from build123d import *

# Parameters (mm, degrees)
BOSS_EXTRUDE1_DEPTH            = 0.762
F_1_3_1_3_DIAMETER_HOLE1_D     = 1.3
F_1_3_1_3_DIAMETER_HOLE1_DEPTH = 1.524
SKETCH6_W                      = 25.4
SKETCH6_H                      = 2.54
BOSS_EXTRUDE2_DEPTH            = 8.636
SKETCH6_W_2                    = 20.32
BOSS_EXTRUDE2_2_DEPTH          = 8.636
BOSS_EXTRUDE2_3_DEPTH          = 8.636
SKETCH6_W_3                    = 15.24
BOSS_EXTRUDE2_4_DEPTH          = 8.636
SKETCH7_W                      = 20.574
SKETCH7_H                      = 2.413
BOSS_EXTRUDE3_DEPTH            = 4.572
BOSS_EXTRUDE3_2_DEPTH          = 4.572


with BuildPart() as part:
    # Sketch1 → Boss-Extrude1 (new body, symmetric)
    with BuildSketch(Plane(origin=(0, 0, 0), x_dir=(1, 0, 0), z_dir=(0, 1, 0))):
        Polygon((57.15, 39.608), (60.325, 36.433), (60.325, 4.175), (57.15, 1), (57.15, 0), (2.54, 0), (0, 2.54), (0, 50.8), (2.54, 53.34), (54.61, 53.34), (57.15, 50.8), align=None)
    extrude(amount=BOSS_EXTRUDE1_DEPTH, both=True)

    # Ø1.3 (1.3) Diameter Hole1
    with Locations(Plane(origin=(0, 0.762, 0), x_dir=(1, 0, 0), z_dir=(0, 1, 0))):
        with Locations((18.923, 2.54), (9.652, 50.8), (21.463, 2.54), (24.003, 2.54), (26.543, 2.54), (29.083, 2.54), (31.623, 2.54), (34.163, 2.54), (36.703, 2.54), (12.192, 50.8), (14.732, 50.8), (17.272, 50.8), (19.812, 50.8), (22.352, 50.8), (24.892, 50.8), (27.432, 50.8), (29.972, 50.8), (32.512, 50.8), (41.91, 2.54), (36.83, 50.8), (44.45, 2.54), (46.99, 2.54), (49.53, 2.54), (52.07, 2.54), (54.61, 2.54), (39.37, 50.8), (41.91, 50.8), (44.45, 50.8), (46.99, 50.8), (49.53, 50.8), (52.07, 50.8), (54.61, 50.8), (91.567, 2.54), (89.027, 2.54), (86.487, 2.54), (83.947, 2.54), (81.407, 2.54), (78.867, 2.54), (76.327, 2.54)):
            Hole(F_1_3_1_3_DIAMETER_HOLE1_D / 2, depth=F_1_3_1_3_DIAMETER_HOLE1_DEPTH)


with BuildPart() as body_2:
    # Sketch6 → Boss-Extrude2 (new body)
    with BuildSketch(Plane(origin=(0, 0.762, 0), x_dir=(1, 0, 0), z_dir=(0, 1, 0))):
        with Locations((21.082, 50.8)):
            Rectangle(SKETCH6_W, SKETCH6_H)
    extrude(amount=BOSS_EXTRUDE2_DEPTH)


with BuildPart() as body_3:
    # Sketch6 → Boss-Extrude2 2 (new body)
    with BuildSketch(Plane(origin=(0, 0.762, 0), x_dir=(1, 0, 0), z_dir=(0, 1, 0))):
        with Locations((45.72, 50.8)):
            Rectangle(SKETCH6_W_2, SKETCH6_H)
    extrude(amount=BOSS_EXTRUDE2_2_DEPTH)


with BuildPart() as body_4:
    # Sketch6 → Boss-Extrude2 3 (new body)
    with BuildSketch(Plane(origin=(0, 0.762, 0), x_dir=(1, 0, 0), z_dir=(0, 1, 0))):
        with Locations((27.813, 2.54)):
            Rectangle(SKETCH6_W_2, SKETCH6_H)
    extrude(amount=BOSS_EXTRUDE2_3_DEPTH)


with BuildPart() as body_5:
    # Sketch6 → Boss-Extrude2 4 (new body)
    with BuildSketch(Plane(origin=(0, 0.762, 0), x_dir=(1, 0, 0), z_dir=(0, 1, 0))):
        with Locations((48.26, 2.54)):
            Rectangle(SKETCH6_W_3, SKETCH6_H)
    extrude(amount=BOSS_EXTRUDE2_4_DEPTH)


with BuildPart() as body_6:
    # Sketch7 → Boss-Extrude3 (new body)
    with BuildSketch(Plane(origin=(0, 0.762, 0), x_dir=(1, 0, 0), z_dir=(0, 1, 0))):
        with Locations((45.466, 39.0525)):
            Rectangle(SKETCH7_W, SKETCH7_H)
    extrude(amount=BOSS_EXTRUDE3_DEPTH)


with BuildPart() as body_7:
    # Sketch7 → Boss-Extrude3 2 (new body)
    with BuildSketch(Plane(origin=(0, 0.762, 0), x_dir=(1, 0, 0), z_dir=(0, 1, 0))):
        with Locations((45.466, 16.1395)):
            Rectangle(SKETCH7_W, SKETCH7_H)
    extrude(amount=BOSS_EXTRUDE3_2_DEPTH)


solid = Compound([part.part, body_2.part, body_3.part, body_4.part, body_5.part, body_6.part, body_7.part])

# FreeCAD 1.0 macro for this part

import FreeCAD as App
import Part
import Sketcher
from FreeCAD import Vector
Q = App.Units.Quantity

doc = App.newDocument("Part")
body = doc.addObject("PartDesign::Body", "Body")

# Sketch on XZ plane
sketch1 = doc.addObject("Sketcher::SketchObject", "Sketch")
body.addObject(sketch1)
sketch1.AttachmentSupport = (doc.XZ_Plane, [""])
sketch1.MapMode = "FlatFace"
sketch1.addGeometry([
    Part.LineSegment(Vector(60.3, -36.4, 0), Vector(57.1, -39.6, 0)),  # 0
    Part.LineSegment(Vector(57.1, -39.6, 0), Vector(57.1, -50.8, 0)),  # 1
    Part.LineSegment(Vector(57.1, -50.8, 0), Vector(54.6, -53.3, 0)),  # 2
    Part.LineSegment(Vector(54.6, -53.3, 0), Vector(2.5, -53.3, 0)),  # 3
    Part.LineSegment(Vector(2.5, -53.3, 0), Vector(0, -50.8, 0)),  # 4
    Part.LineSegment(Vector(0, -50.8, 0), Vector(0, -2.5, 0)),  # 5
    Part.LineSegment(Vector(0, -2.5, 0), Vector(2.5, 0, 0)),  # 6
    Part.LineSegment(Vector(2.5, 0, 0), Vector(57.1, 0, 0)),  # 7
    Part.LineSegment(Vector(57.1, 0, 0), Vector(57.1, -1, 0)),  # 8
    Part.LineSegment(Vector(57.1, -1, 0), Vector(60.3, -4.2, 0)),  # 9
    Part.LineSegment(Vector(60.3, -4.2, 0), Vector(60.3, -36.4, 0)),  # 10
], False)
sketch1.addConstraint([
    Sketcher.Constraint("Coincident", 0, 2, 1, 1),
    Sketcher.Constraint("Coincident", 1, 2, 2, 1),
    Sketcher.Constraint("Coincident", 2, 2, 3, 1),
    Sketcher.Constraint("Coincident", 3, 2, 4, 1),
    Sketcher.Constraint("Coincident", 4, 2, 5, 1),
    Sketcher.Constraint("Coincident", 5, 2, 6, 1),
    Sketcher.Constraint("Coincident", 6, 2, 7, 1),
    Sketcher.Constraint("Coincident", 7, 2, 8, 1),
    Sketcher.Constraint("Coincident", 8, 2, 9, 1),
    Sketcher.Constraint("Coincident", 9, 2, 10, 1),
    Sketcher.Constraint("Coincident", 10, 2, 0, 1),
    Sketcher.Constraint("Vertical", 1),
    Sketcher.Constraint("Horizontal", 3),
    Sketcher.Constraint("Vertical", 5),
    Sketcher.Constraint("Horizontal", 7),
    Sketcher.Constraint("Vertical", 8),
    Sketcher.Constraint("Vertical", 10),
    Sketcher.Constraint("PointOnObject", 4, 2, -2),
    Sketcher.Constraint("PointOnObject", 6, 2, -1),
    Sketcher.Constraint("Parallel", 0, 2),
    Sketcher.Constraint("Perpendicular", 2, 4),
    Sketcher.Constraint("Perpendicular", 4, 6),
    Sketcher.Constraint("Perpendicular", 6, 9),
    Sketcher.Constraint("Horizontal", 1, 2, 4, 2),
    Sketcher.Constraint("Vertical", 3, 2, 6, 2),
    Sketcher.Constraint("Vertical", 1, 2, 7, 2),
    Sketcher.Constraint("Equal", 2, 4),
    Sketcher.Constraint("DistanceY", 5, 1, 5, 2, Q("1.9 in")),
    Sketcher.Constraint("DistanceY", 1, 2, -1, 1, Q("2 in")),
    Sketcher.Constraint("DistanceX", 3, 2, 3, 1, Q("2.05 in")),
    Sketcher.Constraint("DistanceY", 10, 2, 10, 1, Q("1.27 in")),
    Sketcher.Constraint("DistanceY", 0, 2, 8, 2, Q("1.52 in")),
    Sketcher.Constraint("DistanceY", 1, 2, 1, 1, 11.192),
])
pad1 = doc.addObject("PartDesign::Pad", "Pad")
body.addObject(pad1)
pad1.Profile = sketch1
pad1.Length = Q("0.06 in")
pad1.Midplane = True

# Sketch on XZ plane
sketch2 = doc.addObject("Sketcher::SketchObject", "Sketch001")
body.addObject(sketch2)
sketch2.AttachmentSupport = (doc.XZ_Plane, [""])
sketch2.MapMode = "FlatFace"
sketch2.AttachmentOffset = App.Placement(Vector(0, 0, -0.03 * 25.4), App.Rotation())
sketch2.addGeometry([
    Part.Circle(Vector(18.9, -2.5, 0), Vector(0, 0, 1), 0.7),  # 0
    Part.Circle(Vector(9.7, -50.8, 0), Vector(0, 0, 1), 0.7),  # 1
    Part.Circle(Vector(21.5, -2.5, 0), Vector(0, 0, 1), 0.7),  # 2
    Part.Circle(Vector(24, -2.5, 0), Vector(0, 0, 1), 0.7),  # 3
    Part.Circle(Vector(26.5, -2.5, 0), Vector(0, 0, 1), 0.7),  # 4
    Part.Circle(Vector(29.1, -2.5, 0), Vector(0, 0, 1), 0.7),  # 5
    Part.Circle(Vector(31.6, -2.5, 0), Vector(0, 0, 1), 0.7),  # 6
    Part.Circle(Vector(34.2, -2.5, 0), Vector(0, 0, 1), 0.7),  # 7
    Part.Circle(Vector(36.7, -2.5, 0), Vector(0, 0, 1), 0.7),  # 8
    Part.Circle(Vector(12.2, -50.8, 0), Vector(0, 0, 1), 0.7),  # 9
    Part.Circle(Vector(14.7, -50.8, 0), Vector(0, 0, 1), 0.7),  # 10
    Part.Circle(Vector(17.3, -50.8, 0), Vector(0, 0, 1), 0.7),  # 11
    Part.Circle(Vector(19.8, -50.8, 0), Vector(0, 0, 1), 0.7),  # 12
    Part.Circle(Vector(22.4, -50.8, 0), Vector(0, 0, 1), 0.7),  # 13
    Part.Circle(Vector(24.9, -50.8, 0), Vector(0, 0, 1), 0.7),  # 14
    Part.Circle(Vector(27.4, -50.8, 0), Vector(0, 0, 1), 0.7),  # 15
    Part.Circle(Vector(30, -50.8, 0), Vector(0, 0, 1), 0.7),  # 16
    Part.Circle(Vector(32.5, -50.8, 0), Vector(0, 0, 1), 0.7),  # 17
    Part.Circle(Vector(41.9, -2.5, 0), Vector(0, 0, 1), 0.7),  # 18
    Part.Circle(Vector(36.8, -50.8, 0), Vector(0, 0, 1), 0.7),  # 19
    Part.Circle(Vector(44.5, -2.5, 0), Vector(0, 0, 1), 0.7),  # 20
    Part.Circle(Vector(47, -2.5, 0), Vector(0, 0, 1), 0.7),  # 21
    Part.Circle(Vector(49.5, -2.5, 0), Vector(0, 0, 1), 0.7),  # 22
    Part.Circle(Vector(52.1, -2.5, 0), Vector(0, 0, 1), 0.7),  # 23
    Part.Circle(Vector(54.6, -2.5, 0), Vector(0, 0, 1), 0.7),  # 24
    Part.Circle(Vector(39.4, -50.8, 0), Vector(0, 0, 1), 0.7),  # 25
    Part.Circle(Vector(41.9, -50.8, 0), Vector(0, 0, 1), 0.7),  # 26
    Part.Circle(Vector(44.5, -50.8, 0), Vector(0, 0, 1), 0.7),  # 27
    Part.Circle(Vector(47, -50.8, 0), Vector(0, 0, 1), 0.7),  # 28
    Part.Circle(Vector(49.5, -50.8, 0), Vector(0, 0, 1), 0.7),  # 29
    Part.Circle(Vector(52.1, -50.8, 0), Vector(0, 0, 1), 0.7),  # 30
    Part.Circle(Vector(54.6, -50.8, 0), Vector(0, 0, 1), 0.7),  # 31
    Part.Circle(Vector(91.6, -2.5, 0), Vector(0, 0, 1), 0.7),  # 32
    Part.Circle(Vector(89, -2.5, 0), Vector(0, 0, 1), 0.7),  # 33
    Part.Circle(Vector(86.5, -2.5, 0), Vector(0, 0, 1), 0.7),  # 34
    Part.Circle(Vector(83.9, -2.5, 0), Vector(0, 0, 1), 0.7),  # 35
    Part.Circle(Vector(81.4, -2.5, 0), Vector(0, 0, 1), 0.7),  # 36
    Part.Circle(Vector(78.9, -2.5, 0), Vector(0, 0, 1), 0.7),  # 37
    Part.Circle(Vector(76.3, -2.5, 0), Vector(0, 0, 1), 0.7),  # 38
], False)
sketch2.addConstraint([
    Sketcher.Constraint("Equal", 0, 1),
    Sketcher.Constraint("Equal", 1, 2),
    Sketcher.Constraint("Equal", 2, 3),
    Sketcher.Constraint("Equal", 3, 4),
    Sketcher.Constraint("Equal", 4, 5),
    Sketcher.Constraint("Equal", 5, 6),
    Sketcher.Constraint("Equal", 6, 7),
    Sketcher.Constraint("Equal", 7, 8),
    Sketcher.Constraint("Equal", 8, 9),
    Sketcher.Constraint("Equal", 9, 10),
    Sketcher.Constraint("Equal", 10, 11),
    Sketcher.Constraint("Equal", 11, 12),
    Sketcher.Constraint("Equal", 12, 13),
    Sketcher.Constraint("Equal", 13, 14),
    Sketcher.Constraint("Equal", 14, 15),
    Sketcher.Constraint("Equal", 15, 16),
    Sketcher.Constraint("Equal", 16, 17),
    Sketcher.Constraint("Equal", 17, 18),
    Sketcher.Constraint("Equal", 18, 19),
    Sketcher.Constraint("Equal", 19, 20),
    Sketcher.Constraint("Equal", 20, 21),
    Sketcher.Constraint("Equal", 21, 22),
    Sketcher.Constraint("Equal", 22, 23),
    Sketcher.Constraint("Equal", 23, 24),
    Sketcher.Constraint("Equal", 24, 25),
    Sketcher.Constraint("Equal", 25, 26),
    Sketcher.Constraint("Equal", 26, 27),
    Sketcher.Constraint("Equal", 27, 28),
    Sketcher.Constraint("Equal", 28, 29),
    Sketcher.Constraint("Equal", 29, 30),
    Sketcher.Constraint("Equal", 30, 31),
    Sketcher.Constraint("Equal", 31, 32),
    Sketcher.Constraint("Equal", 32, 33),
    Sketcher.Constraint("Equal", 33, 34),
    Sketcher.Constraint("Equal", 34, 35),
    Sketcher.Constraint("Equal", 35, 36),
    Sketcher.Constraint("Equal", 36, 37),
    Sketcher.Constraint("Equal", 37, 38),
    Sketcher.Constraint("Horizontal", 0, 3, 2, 3),
    Sketcher.Constraint("Horizontal", 2, 3, 3, 3),
    Sketcher.Constraint("Horizontal", 3, 3, 4, 3),
    Sketcher.Constraint("Horizontal", 4, 3, 5, 3),
    Sketcher.Constraint("Horizontal", 5, 3, 6, 3),
    Sketcher.Constraint("Horizontal", 6, 3, 7, 3),
    Sketcher.Constraint("Horizontal", 7, 3, 8, 3),
    Sketcher.Constraint("Horizontal", 1, 3, 9, 3),
    Sketcher.Constraint("Horizontal", 9, 3, 10, 3),
    Sketcher.Constraint("Horizontal", 10, 3, 11, 3),
    Sketcher.Constraint("Horizontal", 11, 3, 12, 3),
    Sketcher.Constraint("Horizontal", 12, 3, 13, 3),
    Sketcher.Constraint("Horizontal", 13, 3, 14, 3),
    Sketcher.Constraint("Horizontal", 14, 3, 15, 3),
    Sketcher.Constraint("Horizontal", 15, 3, 16, 3),
    Sketcher.Constraint("Horizontal", 16, 3, 17, 3),
    Sketcher.Constraint("Horizontal", 8, 3, 18, 3),
    Sketcher.Constraint("Horizontal", 17, 3, 19, 3),
    Sketcher.Constraint("Horizontal", 18, 3, 20, 3),
    Sketcher.Constraint("Horizontal", 20, 3, 21, 3),
    Sketcher.Constraint("Horizontal", 21, 3, 22, 3),
    Sketcher.Constraint("Horizontal", 22, 3, 23, 3),
    Sketcher.Constraint("Horizontal", 23, 3, 24, 3),
    Sketcher.Constraint("Horizontal", 19, 3, 25, 3),
    Sketcher.Constraint("Horizontal", 25, 3, 26, 3),
    Sketcher.Constraint("Horizontal", 26, 3, 27, 3),
    Sketcher.Constraint("Horizontal", 27, 3, 28, 3),
    Sketcher.Constraint("Horizontal", 28, 3, 29, 3),
    Sketcher.Constraint("Horizontal", 29, 3, 30, 3),
    Sketcher.Constraint("Horizontal", 30, 3, 31, 3),
    Sketcher.Constraint("Horizontal", 24, 3, 32, 3),
    Sketcher.Constraint("Horizontal", 32, 3, 33, 3),
    Sketcher.Constraint("Horizontal", 33, 3, 34, 3),
    Sketcher.Constraint("Horizontal", 34, 3, 35, 3),
    Sketcher.Constraint("Horizontal", 35, 3, 36, 3),
    Sketcher.Constraint("Horizontal", 36, 3, 37, 3),
    Sketcher.Constraint("Horizontal", 37, 3, 38, 3),
    Sketcher.Constraint("Vertical", 18, 3, 26, 3),
    Sketcher.Constraint("Vertical", 20, 3, 27, 3),
    Sketcher.Constraint("Vertical", 21, 3, 28, 3),
    Sketcher.Constraint("Vertical", 22, 3, 29, 3),
    Sketcher.Constraint("Vertical", 23, 3, 30, 3),
    Sketcher.Constraint("Vertical", 24, 3, 31, 3),
    Sketcher.Constraint("DistanceY", 1, 3, -1, 1, Q("2 in")),
    Sketcher.Constraint("DistanceY", 0, 3, -1, 1, Q("0.1 in")),
    Sketcher.Constraint("DistanceX", 0, 3, 2, 3, Q("0.1 in")),
    Sketcher.Constraint("DistanceX", 2, 3, 3, 3, Q("0.1 in")),
    Sketcher.Constraint("DistanceX", 3, 3, 4, 3, Q("0.1 in")),
    Sketcher.Constraint("DistanceX", 4, 3, 5, 3, Q("0.1 in")),
    Sketcher.Constraint("DistanceX", 5, 3, 6, 3, Q("0.1 in")),
    Sketcher.Constraint("DistanceX", 6, 3, 7, 3, Q("0.1 in")),
    Sketcher.Constraint("DistanceX", 7, 3, 8, 3, Q("0.1 in")),
    Sketcher.Constraint("DistanceX", 1, 3, 9, 3, Q("0.1 in")),
    Sketcher.Constraint("DistanceX", 9, 3, 10, 3, Q("0.1 in")),
    Sketcher.Constraint("DistanceX", 10, 3, 11, 3, Q("0.1 in")),
    Sketcher.Constraint("DistanceX", 11, 3, 12, 3, Q("0.1 in")),
    Sketcher.Constraint("DistanceX", 12, 3, 13, 3, Q("0.1 in")),
    Sketcher.Constraint("DistanceX", 13, 3, 14, 3, Q("0.1 in")),
    Sketcher.Constraint("DistanceX", 14, 3, 15, 3, Q("0.1 in")),
    Sketcher.Constraint("DistanceX", 15, 3, 16, 3, Q("0.1 in")),
    Sketcher.Constraint("DistanceX", 16, 3, 17, 3, Q("0.1 in")),
    Sketcher.Constraint("DistanceX", 18, 3, 20, 3, Q("0.1 in")),
    Sketcher.Constraint("DistanceX", 20, 3, 21, 3, Q("0.1 in")),
    Sketcher.Constraint("DistanceX", 21, 3, 22, 3, Q("0.1 in")),
    Sketcher.Constraint("DistanceX", 22, 3, 23, 3, Q("0.1 in")),
    Sketcher.Constraint("DistanceX", 23, 3, 24, 3, Q("0.1 in")),
    Sketcher.Constraint("DistanceX", 19, 3, 25, 3, Q("0.1 in")),
    Sketcher.Constraint("DistanceX", 25, 3, 26, 3, Q("0.1 in")),
    Sketcher.Constraint("DistanceX", 33, 3, 32, 3, Q("0.1 in")),
    Sketcher.Constraint("DistanceX", 34, 3, 33, 3, Q("0.1 in")),
    Sketcher.Constraint("DistanceX", 35, 3, 34, 3, Q("0.1 in")),
    Sketcher.Constraint("DistanceX", 36, 3, 35, 3, Q("0.1 in")),
    Sketcher.Constraint("DistanceX", 37, 3, 36, 3, Q("0.1 in")),
    Sketcher.Constraint("DistanceX", 38, 3, 37, 3, Q("0.1 in")),
    Sketcher.Constraint("Diameter", 0, 1.3),
    Sketcher.Constraint("DistanceX", -1, 1, 1, 3, Q("0.38 in")),
    Sketcher.Constraint("DistanceX", -1, 1, 18, 3, Q("1.65 in")),
    Sketcher.Constraint("DistanceX", -1, 1, 0, 3, Q("0.745 in")),
    Sketcher.Constraint("DistanceX", -1, 1, 32, 3, Q("3.605 in")),
])
doc.recompute()
hole = doc.addObject("PartDesign::Hole", "Hole")
body.addObject(hole)
hole.Profile = sketch2
hole.ThreadType = "None"
hole.Diameter = 1.3
hole.DepthType = "Dimension"
hole.Depth = Q("0.06 in")
hole.DrillPoint = "Flat"
hole.Reversed = True
body2 = doc.addObject("PartDesign::Body", "Body001")

# Sketch on XZ plane
sketch3 = doc.addObject("Sketcher::SketchObject", "Sketch002")
body2.addObject(sketch3)
sketch3.AttachmentSupport = (doc.getObject("XZ_Plane001"), [""])
sketch3.MapMode = "FlatFace"
sketch3.AttachmentOffset = App.Placement(Vector(0, 0, -0.03 * 25.4), App.Rotation())
sketch3.addGeometry([
    Part.LineSegment(Vector(8.4, -52.1, 0), Vector(8.4, -49.5, 0)),
    Part.LineSegment(Vector(8.4, -49.5, 0), Vector(33.8, -49.5, 0)),
    Part.LineSegment(Vector(33.8, -49.5, 0), Vector(33.8, -52.1, 0)),
    Part.LineSegment(Vector(33.8, -52.1, 0), Vector(8.4, -52.1, 0)),
], False)
sketch3.addConstraint([
    Sketcher.Constraint("Coincident", 0, 2, 1, 1),
    Sketcher.Constraint("Coincident", 1, 2, 2, 1),
    Sketcher.Constraint("Coincident", 2, 2, 3, 1),
    Sketcher.Constraint("Coincident", 3, 2, 0, 1),
    Sketcher.Constraint("Vertical", 0),
    Sketcher.Constraint("Horizontal", 1),
    Sketcher.Constraint("Vertical", 2),
    Sketcher.Constraint("Horizontal", 3),
    Sketcher.Constraint("DistanceX", 1, 1, 1, 2, Q("1 in")),
    Sketcher.Constraint("DistanceY", 0, 1, 0, 2, Q("0.1 in")),
    Sketcher.Constraint("DistanceX", -1, 1, 0, 2, Q("0.33 in")),
    Sketcher.Constraint("DistanceY", 0, 2, -1, 1, Q("1.95 in")),
])
pad2 = doc.addObject("PartDesign::Pad", "Pad001")
body2.addObject(pad2)
pad2.Profile = sketch3
pad2.Length = Q("0.34 in")
pad2.Reversed = True
body3 = doc.addObject("PartDesign::Body", "Body002")

# Sketch on XZ plane
sketch4 = doc.addObject("Sketcher::SketchObject", "Sketch003")
body3.addObject(sketch4)
sketch4.AttachmentSupport = (doc.getObject("XZ_Plane002"), [""])
sketch4.MapMode = "FlatFace"
sketch4.AttachmentOffset = App.Placement(Vector(0, 0, -0.03 * 25.4), App.Rotation())
sketch4.addGeometry([
    Part.LineSegment(Vector(35.6, -52.1, 0), Vector(35.6, -49.5, 0)),
    Part.LineSegment(Vector(35.6, -49.5, 0), Vector(55.9, -49.5, 0)),
    Part.LineSegment(Vector(55.9, -49.5, 0), Vector(55.9, -52.1, 0)),
    Part.LineSegment(Vector(55.9, -52.1, 0), Vector(35.6, -52.1, 0)),
], False)
sketch4.addConstraint([
    Sketcher.Constraint("Coincident", 0, 2, 1, 1),
    Sketcher.Constraint("Coincident", 1, 2, 2, 1),
    Sketcher.Constraint("Coincident", 2, 2, 3, 1),
    Sketcher.Constraint("Coincident", 3, 2, 0, 1),
    Sketcher.Constraint("Vertical", 0),
    Sketcher.Constraint("Horizontal", 1),
    Sketcher.Constraint("Vertical", 2),
    Sketcher.Constraint("Horizontal", 3),
    Sketcher.Constraint("DistanceX", 1, 1, 1, 2, Q("0.8 in")),
    Sketcher.Constraint("DistanceY", 0, 1, 0, 2, Q("0.1 in")),
    Sketcher.Constraint("DistanceX", -1, 1, 0, 2, Q("1.4 in")),
    Sketcher.Constraint("DistanceY", 0, 2, -1, 1, Q("1.95 in")),
])
pad3 = doc.addObject("PartDesign::Pad", "Pad002")
body3.addObject(pad3)
pad3.Profile = sketch4
pad3.Length = Q("0.34 in")
pad3.Reversed = True
body4 = doc.addObject("PartDesign::Body", "Body003")

# Sketch on XZ plane
sketch5 = doc.addObject("Sketcher::SketchObject", "Sketch004")
body4.addObject(sketch5)
sketch5.AttachmentSupport = (doc.getObject("XZ_Plane003"), [""])
sketch5.MapMode = "FlatFace"
sketch5.AttachmentOffset = App.Placement(Vector(0, 0, -0.03 * 25.4), App.Rotation())
sketch5.addGeometry([
    Part.LineSegment(Vector(17.7, -3.8, 0), Vector(17.7, -1.3, 0)),
    Part.LineSegment(Vector(17.7, -1.3, 0), Vector(38, -1.3, 0)),
    Part.LineSegment(Vector(38, -1.3, 0), Vector(38, -3.8, 0)),
    Part.LineSegment(Vector(38, -3.8, 0), Vector(17.7, -3.8, 0)),
], False)
sketch5.addConstraint([
    Sketcher.Constraint("Coincident", 0, 2, 1, 1),
    Sketcher.Constraint("Coincident", 1, 2, 2, 1),
    Sketcher.Constraint("Coincident", 2, 2, 3, 1),
    Sketcher.Constraint("Coincident", 3, 2, 0, 1),
    Sketcher.Constraint("Vertical", 0),
    Sketcher.Constraint("Horizontal", 1),
    Sketcher.Constraint("Vertical", 2),
    Sketcher.Constraint("Horizontal", 3),
    Sketcher.Constraint("DistanceX", 1, 1, 1, 2, Q("0.8 in")),
    Sketcher.Constraint("DistanceY", 0, 1, 0, 2, Q("0.1 in")),
    Sketcher.Constraint("DistanceY", 0, 2, -1, 1, Q("0.05 in")),
    Sketcher.Constraint("DistanceX", -1, 1, 0, 2, Q("0.695 in")),
])
pad4 = doc.addObject("PartDesign::Pad", "Pad003")
body4.addObject(pad4)
pad4.Profile = sketch5
pad4.Length = Q("0.34 in")
pad4.Reversed = True
body5 = doc.addObject("PartDesign::Body", "Body004")

# Sketch on XZ plane
sketch6 = doc.addObject("Sketcher::SketchObject", "Sketch005")
body5.addObject(sketch6)
sketch6.AttachmentSupport = (doc.getObject("XZ_Plane004"), [""])
sketch6.MapMode = "FlatFace"
sketch6.AttachmentOffset = App.Placement(Vector(0, 0, -0.03 * 25.4), App.Rotation())
sketch6.addGeometry([
    Part.LineSegment(Vector(40.6, -3.8, 0), Vector(40.6, -1.3, 0)),
    Part.LineSegment(Vector(40.6, -1.3, 0), Vector(55.9, -1.3, 0)),
    Part.LineSegment(Vector(55.9, -1.3, 0), Vector(55.9, -3.8, 0)),
    Part.LineSegment(Vector(55.9, -3.8, 0), Vector(40.6, -3.8, 0)),
], False)
sketch6.addConstraint([
    Sketcher.Constraint("Coincident", 0, 2, 1, 1),
    Sketcher.Constraint("Coincident", 1, 2, 2, 1),
    Sketcher.Constraint("Coincident", 2, 2, 3, 1),
    Sketcher.Constraint("Coincident", 3, 2, 0, 1),
    Sketcher.Constraint("Vertical", 0),
    Sketcher.Constraint("Horizontal", 1),
    Sketcher.Constraint("Vertical", 2),
    Sketcher.Constraint("Horizontal", 3),
    Sketcher.Constraint("DistanceX", 1, 1, 1, 2, Q("0.6 in")),
    Sketcher.Constraint("DistanceY", 0, 1, 0, 2, Q("0.1 in")),
    Sketcher.Constraint("DistanceX", -1, 1, 0, 2, Q("1.6 in")),
    Sketcher.Constraint("DistanceY", 0, 2, -1, 1, Q("0.05 in")),
])
pad5 = doc.addObject("PartDesign::Pad", "Pad004")
body5.addObject(pad5)
pad5.Profile = sketch6
pad5.Length = Q("0.34 in")
pad5.Reversed = True
body6 = doc.addObject("PartDesign::Body", "Body005")

# Sketch on XZ plane
sketch7 = doc.addObject("Sketcher::SketchObject", "Sketch006")
body6.addObject(sketch7)
sketch7.AttachmentSupport = (doc.getObject("XZ_Plane005"), [""])
sketch7.MapMode = "FlatFace"
sketch7.AttachmentOffset = App.Placement(Vector(0, 0, -0.03 * 25.4), App.Rotation())
sketch7.addGeometry([
    Part.LineSegment(Vector(35.2, -40.3, 0), Vector(35.2, -37.8, 0)),
    Part.LineSegment(Vector(35.2, -37.8, 0), Vector(55.8, -37.8, 0)),
    Part.LineSegment(Vector(55.8, -37.8, 0), Vector(55.8, -40.3, 0)),
    Part.LineSegment(Vector(55.8, -40.3, 0), Vector(35.2, -40.3, 0)),
], False)
sketch7.addConstraint([
    Sketcher.Constraint("Coincident", 0, 2, 1, 1),
    Sketcher.Constraint("Coincident", 1, 2, 2, 1),
    Sketcher.Constraint("Coincident", 2, 2, 3, 1),
    Sketcher.Constraint("Coincident", 3, 2, 0, 1),
    Sketcher.Constraint("Vertical", 0),
    Sketcher.Constraint("Horizontal", 1),
    Sketcher.Constraint("Vertical", 2),
    Sketcher.Constraint("Horizontal", 3),
    Sketcher.Constraint("DistanceX", 1, 1, 1, 2, Q("0.81 in")),
    Sketcher.Constraint("DistanceY", 0, 1, 0, 2, Q("0.095 in")),
    Sketcher.Constraint("DistanceY", 0, 2, -1, 1, Q("1.49 in")),
    Sketcher.Constraint("DistanceX", -1, 1, 0, 2, Q("1.385 in")),
])
pad6 = doc.addObject("PartDesign::Pad", "Pad005")
body6.addObject(pad6)
pad6.Profile = sketch7
pad6.Length = Q("0.18 in")
pad6.Reversed = True
body7 = doc.addObject("PartDesign::Body", "Body006")

# Sketch on XZ plane
sketch8 = doc.addObject("Sketcher::SketchObject", "Sketch007")
body7.addObject(sketch8)
sketch8.AttachmentSupport = (doc.getObject("XZ_Plane006"), [""])
sketch8.MapMode = "FlatFace"
sketch8.AttachmentOffset = App.Placement(Vector(0, 0, -0.03 * 25.4), App.Rotation())
sketch8.addGeometry([
    Part.LineSegment(Vector(35.2, -17.3, 0), Vector(35.2, -14.9, 0)),
    Part.LineSegment(Vector(35.2, -14.9, 0), Vector(55.8, -14.9, 0)),
    Part.LineSegment(Vector(55.8, -14.9, 0), Vector(55.8, -17.3, 0)),
    Part.LineSegment(Vector(55.8, -17.3, 0), Vector(35.2, -17.3, 0)),
], False)
sketch8.addConstraint([
    Sketcher.Constraint("Coincident", 0, 2, 1, 1),
    Sketcher.Constraint("Coincident", 1, 2, 2, 1),
    Sketcher.Constraint("Coincident", 2, 2, 3, 1),
    Sketcher.Constraint("Coincident", 3, 2, 0, 1),
    Sketcher.Constraint("Vertical", 0),
    Sketcher.Constraint("Horizontal", 1),
    Sketcher.Constraint("Vertical", 2),
    Sketcher.Constraint("Horizontal", 3),
    Sketcher.Constraint("DistanceX", 1, 1, 1, 2, Q("0.81 in")),
    Sketcher.Constraint("DistanceY", 0, 1, 0, 2, Q("0.095 in")),
    Sketcher.Constraint("DistanceX", -1, 1, 0, 2, Q("1.385 in")),
    Sketcher.Constraint("DistanceY", 0, 2, -1, 1, 14.933),
])
pad7 = doc.addObject("PartDesign::Pad", "Pad006")
body7.addObject(pad7)
pad7.Profile = sketch8
pad7.Length = Q("0.18 in")
pad7.Reversed = True

doc.recompute()
